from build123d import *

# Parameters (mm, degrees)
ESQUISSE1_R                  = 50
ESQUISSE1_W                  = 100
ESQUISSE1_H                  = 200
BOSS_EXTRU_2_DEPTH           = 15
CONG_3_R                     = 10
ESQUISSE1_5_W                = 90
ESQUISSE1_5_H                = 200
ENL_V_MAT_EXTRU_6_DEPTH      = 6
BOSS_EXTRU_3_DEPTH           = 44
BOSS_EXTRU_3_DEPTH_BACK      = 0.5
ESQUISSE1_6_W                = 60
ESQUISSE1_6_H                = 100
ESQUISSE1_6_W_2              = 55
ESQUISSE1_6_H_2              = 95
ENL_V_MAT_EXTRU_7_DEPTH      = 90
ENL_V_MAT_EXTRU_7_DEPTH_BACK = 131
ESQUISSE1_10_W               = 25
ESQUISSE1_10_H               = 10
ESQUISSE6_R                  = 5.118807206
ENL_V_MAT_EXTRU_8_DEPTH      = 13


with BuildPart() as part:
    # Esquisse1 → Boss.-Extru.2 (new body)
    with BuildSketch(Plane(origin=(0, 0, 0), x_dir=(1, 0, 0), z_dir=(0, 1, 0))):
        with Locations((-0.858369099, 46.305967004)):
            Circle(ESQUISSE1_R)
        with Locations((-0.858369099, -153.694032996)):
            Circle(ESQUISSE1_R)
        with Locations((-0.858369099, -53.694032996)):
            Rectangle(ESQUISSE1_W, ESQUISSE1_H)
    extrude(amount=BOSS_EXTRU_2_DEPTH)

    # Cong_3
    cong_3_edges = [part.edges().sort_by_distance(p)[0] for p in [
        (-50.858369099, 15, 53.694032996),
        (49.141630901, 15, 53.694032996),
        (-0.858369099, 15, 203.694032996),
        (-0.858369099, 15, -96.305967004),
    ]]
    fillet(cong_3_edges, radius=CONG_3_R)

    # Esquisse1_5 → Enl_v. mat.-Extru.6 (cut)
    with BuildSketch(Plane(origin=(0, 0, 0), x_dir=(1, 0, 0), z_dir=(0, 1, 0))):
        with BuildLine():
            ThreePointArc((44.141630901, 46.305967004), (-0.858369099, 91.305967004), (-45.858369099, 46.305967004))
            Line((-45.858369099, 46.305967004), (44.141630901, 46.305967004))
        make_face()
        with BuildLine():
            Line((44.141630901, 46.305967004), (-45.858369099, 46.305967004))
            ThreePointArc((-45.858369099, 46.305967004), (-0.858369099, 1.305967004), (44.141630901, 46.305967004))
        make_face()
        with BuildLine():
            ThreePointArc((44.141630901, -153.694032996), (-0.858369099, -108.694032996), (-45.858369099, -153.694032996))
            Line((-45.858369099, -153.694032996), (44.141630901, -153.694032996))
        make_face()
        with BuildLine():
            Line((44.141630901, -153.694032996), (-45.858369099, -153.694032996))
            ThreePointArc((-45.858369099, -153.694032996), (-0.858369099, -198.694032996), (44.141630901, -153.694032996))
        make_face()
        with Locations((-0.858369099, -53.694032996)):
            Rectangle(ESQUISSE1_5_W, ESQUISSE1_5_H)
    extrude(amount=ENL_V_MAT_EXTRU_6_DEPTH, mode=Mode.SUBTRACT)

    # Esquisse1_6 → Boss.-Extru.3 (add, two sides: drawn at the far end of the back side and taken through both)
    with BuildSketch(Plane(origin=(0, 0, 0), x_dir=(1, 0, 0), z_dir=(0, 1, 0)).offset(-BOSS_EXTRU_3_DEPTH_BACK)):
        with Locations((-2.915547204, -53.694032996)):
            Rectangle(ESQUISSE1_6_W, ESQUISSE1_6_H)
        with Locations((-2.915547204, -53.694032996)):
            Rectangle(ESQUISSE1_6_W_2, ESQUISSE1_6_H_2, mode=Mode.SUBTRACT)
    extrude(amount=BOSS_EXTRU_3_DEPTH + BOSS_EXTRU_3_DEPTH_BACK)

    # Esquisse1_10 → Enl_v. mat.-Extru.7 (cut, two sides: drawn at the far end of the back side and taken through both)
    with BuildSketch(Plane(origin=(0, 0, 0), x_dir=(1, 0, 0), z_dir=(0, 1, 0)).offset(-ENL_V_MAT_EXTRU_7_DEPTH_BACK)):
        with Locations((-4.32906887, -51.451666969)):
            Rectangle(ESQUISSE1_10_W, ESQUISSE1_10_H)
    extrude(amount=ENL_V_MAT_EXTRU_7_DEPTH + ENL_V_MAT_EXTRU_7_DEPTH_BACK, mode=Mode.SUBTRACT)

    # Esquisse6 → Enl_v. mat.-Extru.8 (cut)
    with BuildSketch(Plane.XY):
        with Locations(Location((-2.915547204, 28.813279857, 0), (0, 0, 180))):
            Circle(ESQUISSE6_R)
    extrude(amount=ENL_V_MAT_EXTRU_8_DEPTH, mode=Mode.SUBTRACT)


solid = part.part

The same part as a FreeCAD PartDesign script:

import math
import FreeCAD as App
import Part
import Sketcher
from FreeCAD import Vector
Q = App.Units.Quantity


def edges_at(feature, points):
    """Names of the edges that pass closest to the given points."""
    edges = feature.Shape.Edges
    near = lambda p: min(range(len(edges)), key=lambda i: edges[i].distToShape(Part.Vertex(*p))[0])
    return sorted({f"Edge{near(p) + 1}" for p in points})


def add_polygon(sketch, points):
    """Adds a closed chain of lines whose ends are joined by coincident constraints."""
    first, n = sketch.GeometryCount, len(points)
    for a, b in zip(points, points[1:] + points[:1]):
        sketch.addGeometry(Part.LineSegment(App.Vector(*a, 0), App.Vector(*b, 0)), False)
    for i in range(n):
        sketch.addConstraint(Sketcher.Constraint("Coincident", first + i, 2, first + (i + 1) % n, 1))

doc = App.newDocument("Part")
body = doc.addObject("PartDesign::Body", "Body")

sketch1 = body.newObject("Sketcher::SketchObject", "Sketch")
sketch1.AttachmentSupport = (doc.getObject("XZ_Plane"), [""])
sketch1.MapMode = "FlatFace"
sketch1.addGeometry(Part.ArcOfCircle(Part.Circle(Vector(-1, -46, 0), Vector(0, 0, 1), 50), math.radians(180), math.radians(360)), False)
sketch1.addGeometry(Part.LineSegment(Vector(-51, -46, 0), Vector(-51, 154, 0)), False)
sketch1.addGeometry(Part.ArcOfCircle(Part.Circle(Vector(-1, 154, 0), Vector(0, 0, 1), 50), math.radians(0), math.radians(180)), False)
sketch1.addGeometry(Part.LineSegment(Vector(49, 154, 0), Vector(49, -46, 0)), False)
sketch1.addConstraint(Sketcher.Constraint("Tangent", 0, 1, 1, 1))
sketch1.addConstraint(Sketcher.Constraint("Tangent", 1, 2, 2, 2))
sketch1.addConstraint(Sketcher.Constraint("Tangent", 2, 1, 3, 1))
sketch1.addConstraint(Sketcher.Constraint("Tangent", 3, 2, 0, 2))
sketch1.addConstraint(Sketcher.Constraint("Vertical", 1))
sketch1.addConstraint(Sketcher.Constraint("Vertical", 3))
sketch1.addConstraint(Sketcher.Constraint("Radius", 0, Q("50 mm")))
sketch1.addConstraint(Sketcher.Constraint("DistanceY", 1, 1, 1, 2, Q("200 mm")))
sketch1.addConstraint(Sketcher.Constraint("DistanceX", 0, 3, -1, 1, Q("0.858369 mm")))
sketch1.addConstraint(Sketcher.Constraint("DistanceY", 0, 3, -1, 1, Q("46.305967 mm")))
pad1 = body.newObject("PartDesign::Pad", "Pad")
pad1.Profile = sketch1
pad1.Length = 15
pad1.Reversed = True
doc.recompute()

fillet = body.newObject("PartDesign::Fillet", "Fillet")
fillet.Base = (pad1, edges_at(pad1, [
    (-50.858, 15, 53.694),
    (49.142, 15, 53.694),
    (-0.858, 15, 203.694),
    (-0.858, 15, -96.306),
]))
fillet.Radius = 10

sketch2 = body.newObject("Sketcher::SketchObject", "Sketch001")
sketch2.AttachmentSupport = (doc.getObject("XZ_Plane"), [""])
sketch2.MapMode = "FlatFace"
sketch2.addGeometry(Part.ArcOfCircle(Part.Circle(Vector(-1, -46, 0), Vector(0, 0, 1), 45), math.radians(180), math.radians(360)), False)
sketch2.addGeometry(Part.LineSegment(Vector(-46, -46, 0), Vector(-46, 154, 0)), False)
sketch2.addGeometry(Part.ArcOfCircle(Part.Circle(Vector(-1, 154, 0), Vector(0, 0, 1), 45), math.radians(0), math.radians(180)), False)
sketch2.addGeometry(Part.LineSegment(Vector(44, 154, 0), Vector(44, -46, 0)), False)
sketch2.addConstraint(Sketcher.Constraint("Tangent", 0, 1, 1, 1))
sketch2.addConstraint(Sketcher.Constraint("Tangent", 1, 2, 2, 2))
sketch2.addConstraint(Sketcher.Constraint("Tangent", 2, 1, 3, 1))
sketch2.addConstraint(Sketcher.Constraint("Tangent", 3, 2, 0, 2))
sketch2.addConstraint(Sketcher.Constraint("Vertical", 1))
sketch2.addConstraint(Sketcher.Constraint("Vertical", 3))
sketch2.addConstraint(Sketcher.Constraint("Radius", 0, Q("45 mm")))
sketch2.addConstraint(Sketcher.Constraint("DistanceY", 1, 1, 1, 2, Q("200 mm")))
sketch2.addConstraint(Sketcher.Constraint("DistanceX", 0, 3, -1, 1, Q("0.858369 mm")))
sketch2.addConstraint(Sketcher.Constraint("DistanceY", 0, 3, -1, 1, Q("46.305967 mm")))
pocket1 = body.newObject("PartDesign::Pocket", "Pocket")
pocket1.Profile = sketch2
pocket1.Length = 6

sketch3 = body.newObject("Sketcher::SketchObject", "Sketch002")
sketch3.AttachmentSupport = (doc.getObject("XZ_Plane"), [""])
sketch3.MapMode = "FlatFace"
add_polygon(sketch3, [(-33, 4), (-33, 104), (27, 104), (27, 4)])
add_polygon(sketch3, [(25, 101), (-30, 101), (-30, 6), (25, 6)])
sketch3.addConstraint(Sketcher.Constraint("Vertical", 0))
sketch3.addConstraint(Sketcher.Constraint("Horizontal", 1))
sketch3.addConstraint(Sketcher.Constraint("Vertical", 2))
sketch3.addConstraint(Sketcher.Constraint("Horizontal", 3))
sketch3.addConstraint(Sketcher.Constraint("Horizontal", 4))
sketch3.addConstraint(Sketcher.Constraint("Vertical", 5))
sketch3.addConstraint(Sketcher.Constraint("Horizontal", 6))
sketch3.addConstraint(Sketcher.Constraint("Vertical", 7))
sketch3.addConstraint(Sketcher.Constraint("DistanceX", 1, 1, 1, 2, Q("60 mm")))
sketch3.addConstraint(Sketcher.Constraint("DistanceX", 4, 2, 4, 1, Q("55 mm")))
sketch3.addConstraint(Sketcher.Constraint("DistanceY", 0, 1, 0, 2, Q("100 mm")))
sketch3.addConstraint(Sketcher.Constraint("DistanceY", 5, 2, 5, 1, Q("95 mm")))
sketch3.addConstraint(Sketcher.Constraint("DistanceX", 0, 2, 4, 2, Q("2.5 mm")))
sketch3.addConstraint(Sketcher.Constraint("DistanceY", 4, 2, 0, 2, Q("2.5 mm")))
sketch3.addConstraint(Sketcher.Constraint("DistanceX", 0, 2, -1, 1, Q("32.915547 mm")))
sketch3.addConstraint(Sketcher.Constraint("DistanceY", -1, 1, 0, 2, Q("103.694033 mm")))
pad2 = body.newObject("PartDesign::Pad", "Pad001")
pad2.Profile = sketch3
pad2.Type = "TwoLengths"
pad2.Length = 44
pad2.Length2 = 0.5
pad2.Reversed = True

sketch4 = body.newObject("Sketcher::SketchObject", "Sketch003")
sketch4.AttachmentSupport = (doc.getObject("XZ_Plane"), [""])
sketch4.MapMode = "FlatFace"
add_polygon(sketch4, [(-17, 46), (-17, 56), (8, 56), (8, 46)])
sketch4.addConstraint(Sketcher.Constraint("Vertical", 0))
sketch4.addConstraint(Sketcher.Constraint("Horizontal", 1))
sketch4.addConstraint(Sketcher.Constraint("Vertical", 2))
sketch4.addConstraint(Sketcher.Constraint("Horizontal", 3))
sketch4.addConstraint(Sketcher.Constraint("DistanceX", 1, 1, 1, 2, Q("25 mm")))
sketch4.addConstraint(Sketcher.Constraint("DistanceY", 0, 1, 0, 2, Q("10 mm")))
sketch4.addConstraint(Sketcher.Constraint("DistanceX", 0, 2, -1, 1, Q("16.829069 mm")))
sketch4.addConstraint(Sketcher.Constraint("DistanceY", -1, 1, 0, 2, Q("56.451667 mm")))
pocket2 = body.newObject("PartDesign::Pocket", "Pocket001")
pocket2.Profile = sketch4
pocket2.Type = "ThroughAll"
pocket2.Midplane = True

sketch5 = body.newObject("Sketcher::SketchObject", "Sketch004")
sketch5.AttachmentSupport = (doc.getObject("XY_Plane"), [""])
sketch5.MapMode = "FlatFace"
sketch5.addGeometry(Part.Circle(Vector(-3, 29, 0), Vector(0, 0, 1), 5), False)
sketch5.addConstraint(Sketcher.Constraint("Diameter", 0, Q("10.237614 mm")))
sketch5.addConstraint(Sketcher.Constraint("DistanceY", -1, 1, 0, 3, Q("28.81328 mm")))
sketch5.addConstraint(Sketcher.Constraint("DistanceX", 0, 3, -1, 1, Q("2.915547 mm")))
pocket3 = body.newObject("PartDesign::Pocket", "Pocket002")
pocket3.Profile = sketch5
pocket3.Length = 13
pocket3.Reversed = True

doc.recompute()
